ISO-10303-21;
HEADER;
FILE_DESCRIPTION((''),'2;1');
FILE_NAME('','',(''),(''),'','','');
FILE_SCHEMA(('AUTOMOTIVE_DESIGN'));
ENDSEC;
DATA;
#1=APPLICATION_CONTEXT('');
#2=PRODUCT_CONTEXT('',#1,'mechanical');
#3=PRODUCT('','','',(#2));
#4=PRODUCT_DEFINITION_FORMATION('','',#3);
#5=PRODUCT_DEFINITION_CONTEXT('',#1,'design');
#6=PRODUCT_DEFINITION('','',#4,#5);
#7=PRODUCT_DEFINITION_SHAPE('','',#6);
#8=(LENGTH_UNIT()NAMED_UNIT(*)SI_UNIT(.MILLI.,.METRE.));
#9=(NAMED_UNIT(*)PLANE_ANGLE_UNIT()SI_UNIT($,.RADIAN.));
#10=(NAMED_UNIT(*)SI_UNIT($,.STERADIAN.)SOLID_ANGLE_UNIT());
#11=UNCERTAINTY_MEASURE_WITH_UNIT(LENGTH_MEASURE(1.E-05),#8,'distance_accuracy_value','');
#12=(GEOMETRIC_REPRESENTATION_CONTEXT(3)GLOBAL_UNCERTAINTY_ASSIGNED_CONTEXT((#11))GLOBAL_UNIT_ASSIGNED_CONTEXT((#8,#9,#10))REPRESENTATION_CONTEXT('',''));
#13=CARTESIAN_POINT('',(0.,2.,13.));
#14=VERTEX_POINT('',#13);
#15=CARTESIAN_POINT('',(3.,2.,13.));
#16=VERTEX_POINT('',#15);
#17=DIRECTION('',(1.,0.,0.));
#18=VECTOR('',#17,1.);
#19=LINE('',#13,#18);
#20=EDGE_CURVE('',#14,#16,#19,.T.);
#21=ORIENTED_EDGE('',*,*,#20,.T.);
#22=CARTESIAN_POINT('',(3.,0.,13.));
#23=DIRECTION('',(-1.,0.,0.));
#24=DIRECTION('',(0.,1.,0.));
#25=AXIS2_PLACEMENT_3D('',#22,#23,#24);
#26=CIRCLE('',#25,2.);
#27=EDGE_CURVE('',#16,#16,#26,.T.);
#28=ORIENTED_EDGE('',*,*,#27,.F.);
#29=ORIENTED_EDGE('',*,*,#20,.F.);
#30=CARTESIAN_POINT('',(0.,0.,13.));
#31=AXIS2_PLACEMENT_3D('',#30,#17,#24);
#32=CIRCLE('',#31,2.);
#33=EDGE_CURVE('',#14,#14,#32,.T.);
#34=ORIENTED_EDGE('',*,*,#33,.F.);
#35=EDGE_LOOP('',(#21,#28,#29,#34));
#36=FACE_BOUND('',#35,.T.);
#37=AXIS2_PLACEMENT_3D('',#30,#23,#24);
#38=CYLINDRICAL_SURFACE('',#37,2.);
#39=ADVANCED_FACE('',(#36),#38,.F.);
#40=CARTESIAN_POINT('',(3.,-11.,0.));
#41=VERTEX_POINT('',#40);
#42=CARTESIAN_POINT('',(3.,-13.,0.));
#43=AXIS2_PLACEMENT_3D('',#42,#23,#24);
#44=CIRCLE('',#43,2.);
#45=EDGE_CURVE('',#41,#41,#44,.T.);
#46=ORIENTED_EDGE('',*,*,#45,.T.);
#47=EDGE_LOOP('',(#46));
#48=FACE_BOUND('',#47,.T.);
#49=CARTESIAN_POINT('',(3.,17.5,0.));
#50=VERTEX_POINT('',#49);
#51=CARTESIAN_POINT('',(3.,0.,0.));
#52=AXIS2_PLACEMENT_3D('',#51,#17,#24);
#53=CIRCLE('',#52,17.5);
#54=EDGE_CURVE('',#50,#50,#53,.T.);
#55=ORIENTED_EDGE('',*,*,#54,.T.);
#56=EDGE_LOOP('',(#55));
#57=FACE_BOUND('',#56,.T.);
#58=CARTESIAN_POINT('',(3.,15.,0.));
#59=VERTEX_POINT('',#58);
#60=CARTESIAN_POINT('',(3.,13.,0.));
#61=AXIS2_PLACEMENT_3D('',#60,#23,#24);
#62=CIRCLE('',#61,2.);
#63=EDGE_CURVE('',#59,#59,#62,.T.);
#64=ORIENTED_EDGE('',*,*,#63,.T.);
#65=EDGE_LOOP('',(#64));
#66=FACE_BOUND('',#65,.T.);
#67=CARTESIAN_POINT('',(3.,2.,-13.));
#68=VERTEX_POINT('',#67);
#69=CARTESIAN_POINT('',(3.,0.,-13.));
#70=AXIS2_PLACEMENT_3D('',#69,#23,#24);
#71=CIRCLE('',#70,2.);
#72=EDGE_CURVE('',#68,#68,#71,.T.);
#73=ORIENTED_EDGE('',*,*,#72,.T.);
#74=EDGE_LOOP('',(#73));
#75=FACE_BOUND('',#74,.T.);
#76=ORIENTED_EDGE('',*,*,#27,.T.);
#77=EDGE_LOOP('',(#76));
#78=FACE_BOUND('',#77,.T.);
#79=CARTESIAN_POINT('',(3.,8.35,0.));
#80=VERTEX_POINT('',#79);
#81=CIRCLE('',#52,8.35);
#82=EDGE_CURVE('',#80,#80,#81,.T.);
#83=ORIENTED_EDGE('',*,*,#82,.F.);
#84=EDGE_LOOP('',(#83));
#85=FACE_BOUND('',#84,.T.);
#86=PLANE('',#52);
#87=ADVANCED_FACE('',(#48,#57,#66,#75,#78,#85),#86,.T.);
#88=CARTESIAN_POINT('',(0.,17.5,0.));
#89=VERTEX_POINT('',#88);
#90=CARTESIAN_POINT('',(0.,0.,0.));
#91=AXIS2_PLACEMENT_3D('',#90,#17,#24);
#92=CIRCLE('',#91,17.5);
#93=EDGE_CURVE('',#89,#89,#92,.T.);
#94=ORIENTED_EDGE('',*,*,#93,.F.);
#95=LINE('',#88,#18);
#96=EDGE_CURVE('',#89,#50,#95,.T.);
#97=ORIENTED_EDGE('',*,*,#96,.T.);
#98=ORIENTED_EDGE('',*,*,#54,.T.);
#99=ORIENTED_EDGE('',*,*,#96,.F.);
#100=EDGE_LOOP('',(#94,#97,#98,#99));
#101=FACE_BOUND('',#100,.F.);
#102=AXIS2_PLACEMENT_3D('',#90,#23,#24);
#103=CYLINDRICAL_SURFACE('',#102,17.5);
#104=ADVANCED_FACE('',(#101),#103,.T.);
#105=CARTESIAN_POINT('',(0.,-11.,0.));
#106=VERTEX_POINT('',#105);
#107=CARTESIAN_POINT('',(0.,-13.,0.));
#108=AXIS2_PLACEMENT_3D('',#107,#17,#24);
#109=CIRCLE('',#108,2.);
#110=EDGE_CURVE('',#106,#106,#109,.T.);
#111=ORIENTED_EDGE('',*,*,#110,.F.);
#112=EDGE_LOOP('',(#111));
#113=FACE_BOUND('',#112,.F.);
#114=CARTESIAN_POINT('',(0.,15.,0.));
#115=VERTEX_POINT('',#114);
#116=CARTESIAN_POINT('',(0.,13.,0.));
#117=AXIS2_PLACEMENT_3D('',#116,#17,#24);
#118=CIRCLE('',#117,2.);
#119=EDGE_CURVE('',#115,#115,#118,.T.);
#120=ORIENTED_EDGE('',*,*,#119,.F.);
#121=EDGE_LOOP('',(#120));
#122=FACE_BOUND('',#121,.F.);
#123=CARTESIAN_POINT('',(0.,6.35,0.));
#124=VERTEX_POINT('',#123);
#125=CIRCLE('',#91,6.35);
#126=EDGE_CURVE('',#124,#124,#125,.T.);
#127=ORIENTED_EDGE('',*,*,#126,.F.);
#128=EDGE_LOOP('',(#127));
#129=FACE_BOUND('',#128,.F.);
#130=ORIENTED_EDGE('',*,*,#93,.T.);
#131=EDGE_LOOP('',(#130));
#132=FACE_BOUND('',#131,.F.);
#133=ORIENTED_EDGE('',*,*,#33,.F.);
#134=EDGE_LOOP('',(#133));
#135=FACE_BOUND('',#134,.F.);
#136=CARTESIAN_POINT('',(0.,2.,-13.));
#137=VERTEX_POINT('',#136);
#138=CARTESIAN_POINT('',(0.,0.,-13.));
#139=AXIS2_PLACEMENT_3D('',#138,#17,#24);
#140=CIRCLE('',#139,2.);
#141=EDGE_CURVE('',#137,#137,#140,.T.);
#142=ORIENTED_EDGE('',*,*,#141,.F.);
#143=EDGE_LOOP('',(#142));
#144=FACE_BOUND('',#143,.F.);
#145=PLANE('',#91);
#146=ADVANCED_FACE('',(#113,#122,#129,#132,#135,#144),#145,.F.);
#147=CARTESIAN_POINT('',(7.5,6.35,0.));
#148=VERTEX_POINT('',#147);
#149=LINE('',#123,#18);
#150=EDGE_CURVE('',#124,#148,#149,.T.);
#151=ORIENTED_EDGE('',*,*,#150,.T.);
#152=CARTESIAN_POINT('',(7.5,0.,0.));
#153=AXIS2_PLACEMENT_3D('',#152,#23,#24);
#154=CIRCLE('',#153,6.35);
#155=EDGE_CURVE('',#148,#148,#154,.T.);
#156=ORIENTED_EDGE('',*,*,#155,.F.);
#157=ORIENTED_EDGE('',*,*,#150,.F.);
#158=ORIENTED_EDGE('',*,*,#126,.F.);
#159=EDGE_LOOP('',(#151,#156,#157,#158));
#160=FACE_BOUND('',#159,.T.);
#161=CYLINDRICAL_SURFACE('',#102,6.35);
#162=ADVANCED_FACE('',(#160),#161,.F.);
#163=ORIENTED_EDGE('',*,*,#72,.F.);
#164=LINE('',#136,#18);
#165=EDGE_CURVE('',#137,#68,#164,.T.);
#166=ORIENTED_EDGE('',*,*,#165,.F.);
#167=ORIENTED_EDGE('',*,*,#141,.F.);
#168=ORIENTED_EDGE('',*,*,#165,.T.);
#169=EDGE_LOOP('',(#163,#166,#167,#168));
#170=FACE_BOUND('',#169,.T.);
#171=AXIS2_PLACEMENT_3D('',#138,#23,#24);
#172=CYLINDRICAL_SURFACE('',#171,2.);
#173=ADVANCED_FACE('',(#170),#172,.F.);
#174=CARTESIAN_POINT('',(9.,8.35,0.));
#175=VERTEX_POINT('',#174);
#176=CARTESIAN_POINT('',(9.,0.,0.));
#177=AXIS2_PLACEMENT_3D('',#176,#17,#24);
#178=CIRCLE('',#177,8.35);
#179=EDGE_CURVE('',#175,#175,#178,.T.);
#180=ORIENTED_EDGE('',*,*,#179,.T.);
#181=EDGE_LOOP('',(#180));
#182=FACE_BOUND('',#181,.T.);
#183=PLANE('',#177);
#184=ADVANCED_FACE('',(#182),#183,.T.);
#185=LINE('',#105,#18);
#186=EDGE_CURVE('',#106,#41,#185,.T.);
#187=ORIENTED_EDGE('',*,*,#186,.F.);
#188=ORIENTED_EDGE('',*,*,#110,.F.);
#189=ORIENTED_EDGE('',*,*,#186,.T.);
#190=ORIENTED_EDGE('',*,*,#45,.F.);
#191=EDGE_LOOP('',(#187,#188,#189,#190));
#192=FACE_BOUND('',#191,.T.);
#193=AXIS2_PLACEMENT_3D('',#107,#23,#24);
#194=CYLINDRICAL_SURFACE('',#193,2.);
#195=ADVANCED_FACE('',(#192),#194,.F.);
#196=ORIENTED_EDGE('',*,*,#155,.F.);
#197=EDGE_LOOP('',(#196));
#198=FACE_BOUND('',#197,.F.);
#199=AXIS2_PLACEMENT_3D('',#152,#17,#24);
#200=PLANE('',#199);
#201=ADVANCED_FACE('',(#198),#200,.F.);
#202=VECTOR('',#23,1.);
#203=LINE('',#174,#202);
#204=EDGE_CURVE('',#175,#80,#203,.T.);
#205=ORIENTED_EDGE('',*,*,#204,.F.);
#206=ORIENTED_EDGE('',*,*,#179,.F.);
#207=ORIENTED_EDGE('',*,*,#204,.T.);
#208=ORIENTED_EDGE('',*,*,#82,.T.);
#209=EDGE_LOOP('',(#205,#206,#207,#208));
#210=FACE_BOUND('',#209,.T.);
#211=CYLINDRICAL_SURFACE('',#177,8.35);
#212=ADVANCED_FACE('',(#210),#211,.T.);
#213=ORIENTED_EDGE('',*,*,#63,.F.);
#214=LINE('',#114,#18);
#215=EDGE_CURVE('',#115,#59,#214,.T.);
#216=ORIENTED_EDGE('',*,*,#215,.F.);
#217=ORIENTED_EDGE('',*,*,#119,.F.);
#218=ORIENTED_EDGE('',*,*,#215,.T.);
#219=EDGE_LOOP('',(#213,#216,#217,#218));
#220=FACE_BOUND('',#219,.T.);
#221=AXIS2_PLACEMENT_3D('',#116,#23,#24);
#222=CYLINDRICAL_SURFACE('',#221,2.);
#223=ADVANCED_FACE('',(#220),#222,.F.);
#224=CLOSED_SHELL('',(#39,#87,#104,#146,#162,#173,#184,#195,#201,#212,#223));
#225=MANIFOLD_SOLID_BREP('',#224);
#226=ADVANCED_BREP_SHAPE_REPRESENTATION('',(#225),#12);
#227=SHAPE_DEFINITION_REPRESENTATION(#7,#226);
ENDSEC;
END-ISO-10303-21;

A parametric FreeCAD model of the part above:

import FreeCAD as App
import Part
import Sketcher

V = App.Vector

doc = App.newDocument("Part")
body = doc.addObject("PartDesign::Body", "Body")

sketch1 = doc.addObject("Sketcher::SketchObject", "Sketch")
body.addObject(sketch1)
sketch1.AttachmentSupport = (doc.YZ_Plane, [""])
sketch1.MapMode = "FlatFace"
sketch1.addGeometry([
    Part.Circle(V(0, 0, 0), V(0, 0, 1), 17.5),
    Part.Circle(V(0, -13, 0), V(0, 0, 1), 2),
    Part.Circle(V(-13, 0, 0), V(0, 0, 1), 2),
    Part.Circle(V(0, 0, 0), V(0, 0, 1), 6.3),
    Part.Circle(V(13, 0, 0), V(0, 0, 1), 2),
    Part.Circle(V(0, 13, 0), V(0, 0, 1), 2),
], False)
sketch1.addConstraint([
    Sketcher.Constraint("Coincident", 0, 3, -1, 1),
    Sketcher.Constraint("Coincident", 3, 3, -1, 1),
    Sketcher.Constraint("Equal", 1, 2),
    Sketcher.Constraint("Equal", 2, 4),
    Sketcher.Constraint("Equal", 4, 5),
    Sketcher.Constraint("Symmetric", 2, 3, 4, 3, -1, 1),
    Sketcher.Constraint("Symmetric", 1, 3, 5, 3, -1, 1),
    Sketcher.Constraint("PointOnObject", 1, 3, -2),
    Sketcher.Constraint("PointOnObject", 2, 3, -1),
    Sketcher.Constraint("Diameter", 0, 35.0),
    Sketcher.Constraint("Diameter", 1, 4.0),
    Sketcher.Constraint("Diameter", 3, 12.7),
    Sketcher.Constraint("DistanceY", 1, 3, -1, 1, 13.0),
    Sketcher.Constraint("DistanceX", 2, 3, -1, 1, 13.0),
])
pad1 = doc.addObject("PartDesign::Pad", "Pad")
body.addObject(pad1)
pad1.Profile = sketch1
pad1.Length = 9

sketch2 = doc.addObject("Sketcher::SketchObject", "Sketch001")
body.addObject(sketch2)
sketch2.AttachmentSupport = (doc.YZ_Plane, [""])
sketch2.MapMode = "FlatFace"
sketch2.AttachmentOffset = App.Placement(V(0, 0, 9), App.Rotation())
sketch2.addGeometry([
    Part.Circle(V(0, 0, 0), V(0, 0, 1), 18),
    Part.Circle(V(0, 0, 0), V(0, 0, 1), 8),
], False)
sketch2.addConstraint([
    Sketcher.Constraint("Coincident", 0, 3, -1, 1),
    Sketcher.Constraint("Coincident", 1, 3, -1, 1),
    Sketcher.Constraint("Diameter", 0, 35.0),
    Sketcher.Constraint("Diameter", 1, 16.7),
])
pocket1 = doc.addObject("PartDesign::Pocket", "Pocket")
body.addObject(pocket1)
pocket1.Profile = sketch2
pocket1.Length = 6

sketch3 = doc.addObject("Sketcher::SketchObject", "Sketch002")
body.addObject(sketch3)
sketch3.AttachmentSupport = (doc.YZ_Plane, [""])
sketch3.MapMode = "FlatFace"
sketch3.AttachmentOffset = App.Placement(V(0, 0, 9), App.Rotation())
sketch3.addGeometry(Part.Circle(V(0, 0, 0), V(0, 0, 1), 6), False)
sketch3.addConstraint([
    Sketcher.Constraint("Coincident", 0, 3, -1, 1),
    Sketcher.Constraint("Diameter", 0, 12.8),
])
pad2 = doc.addObject("PartDesign::Pad", "Pad001")
body.addObject(pad2)
pad2.Profile = sketch3
pad2.Length = 1.5
pad2.Reversed = True

doc.recompute()
